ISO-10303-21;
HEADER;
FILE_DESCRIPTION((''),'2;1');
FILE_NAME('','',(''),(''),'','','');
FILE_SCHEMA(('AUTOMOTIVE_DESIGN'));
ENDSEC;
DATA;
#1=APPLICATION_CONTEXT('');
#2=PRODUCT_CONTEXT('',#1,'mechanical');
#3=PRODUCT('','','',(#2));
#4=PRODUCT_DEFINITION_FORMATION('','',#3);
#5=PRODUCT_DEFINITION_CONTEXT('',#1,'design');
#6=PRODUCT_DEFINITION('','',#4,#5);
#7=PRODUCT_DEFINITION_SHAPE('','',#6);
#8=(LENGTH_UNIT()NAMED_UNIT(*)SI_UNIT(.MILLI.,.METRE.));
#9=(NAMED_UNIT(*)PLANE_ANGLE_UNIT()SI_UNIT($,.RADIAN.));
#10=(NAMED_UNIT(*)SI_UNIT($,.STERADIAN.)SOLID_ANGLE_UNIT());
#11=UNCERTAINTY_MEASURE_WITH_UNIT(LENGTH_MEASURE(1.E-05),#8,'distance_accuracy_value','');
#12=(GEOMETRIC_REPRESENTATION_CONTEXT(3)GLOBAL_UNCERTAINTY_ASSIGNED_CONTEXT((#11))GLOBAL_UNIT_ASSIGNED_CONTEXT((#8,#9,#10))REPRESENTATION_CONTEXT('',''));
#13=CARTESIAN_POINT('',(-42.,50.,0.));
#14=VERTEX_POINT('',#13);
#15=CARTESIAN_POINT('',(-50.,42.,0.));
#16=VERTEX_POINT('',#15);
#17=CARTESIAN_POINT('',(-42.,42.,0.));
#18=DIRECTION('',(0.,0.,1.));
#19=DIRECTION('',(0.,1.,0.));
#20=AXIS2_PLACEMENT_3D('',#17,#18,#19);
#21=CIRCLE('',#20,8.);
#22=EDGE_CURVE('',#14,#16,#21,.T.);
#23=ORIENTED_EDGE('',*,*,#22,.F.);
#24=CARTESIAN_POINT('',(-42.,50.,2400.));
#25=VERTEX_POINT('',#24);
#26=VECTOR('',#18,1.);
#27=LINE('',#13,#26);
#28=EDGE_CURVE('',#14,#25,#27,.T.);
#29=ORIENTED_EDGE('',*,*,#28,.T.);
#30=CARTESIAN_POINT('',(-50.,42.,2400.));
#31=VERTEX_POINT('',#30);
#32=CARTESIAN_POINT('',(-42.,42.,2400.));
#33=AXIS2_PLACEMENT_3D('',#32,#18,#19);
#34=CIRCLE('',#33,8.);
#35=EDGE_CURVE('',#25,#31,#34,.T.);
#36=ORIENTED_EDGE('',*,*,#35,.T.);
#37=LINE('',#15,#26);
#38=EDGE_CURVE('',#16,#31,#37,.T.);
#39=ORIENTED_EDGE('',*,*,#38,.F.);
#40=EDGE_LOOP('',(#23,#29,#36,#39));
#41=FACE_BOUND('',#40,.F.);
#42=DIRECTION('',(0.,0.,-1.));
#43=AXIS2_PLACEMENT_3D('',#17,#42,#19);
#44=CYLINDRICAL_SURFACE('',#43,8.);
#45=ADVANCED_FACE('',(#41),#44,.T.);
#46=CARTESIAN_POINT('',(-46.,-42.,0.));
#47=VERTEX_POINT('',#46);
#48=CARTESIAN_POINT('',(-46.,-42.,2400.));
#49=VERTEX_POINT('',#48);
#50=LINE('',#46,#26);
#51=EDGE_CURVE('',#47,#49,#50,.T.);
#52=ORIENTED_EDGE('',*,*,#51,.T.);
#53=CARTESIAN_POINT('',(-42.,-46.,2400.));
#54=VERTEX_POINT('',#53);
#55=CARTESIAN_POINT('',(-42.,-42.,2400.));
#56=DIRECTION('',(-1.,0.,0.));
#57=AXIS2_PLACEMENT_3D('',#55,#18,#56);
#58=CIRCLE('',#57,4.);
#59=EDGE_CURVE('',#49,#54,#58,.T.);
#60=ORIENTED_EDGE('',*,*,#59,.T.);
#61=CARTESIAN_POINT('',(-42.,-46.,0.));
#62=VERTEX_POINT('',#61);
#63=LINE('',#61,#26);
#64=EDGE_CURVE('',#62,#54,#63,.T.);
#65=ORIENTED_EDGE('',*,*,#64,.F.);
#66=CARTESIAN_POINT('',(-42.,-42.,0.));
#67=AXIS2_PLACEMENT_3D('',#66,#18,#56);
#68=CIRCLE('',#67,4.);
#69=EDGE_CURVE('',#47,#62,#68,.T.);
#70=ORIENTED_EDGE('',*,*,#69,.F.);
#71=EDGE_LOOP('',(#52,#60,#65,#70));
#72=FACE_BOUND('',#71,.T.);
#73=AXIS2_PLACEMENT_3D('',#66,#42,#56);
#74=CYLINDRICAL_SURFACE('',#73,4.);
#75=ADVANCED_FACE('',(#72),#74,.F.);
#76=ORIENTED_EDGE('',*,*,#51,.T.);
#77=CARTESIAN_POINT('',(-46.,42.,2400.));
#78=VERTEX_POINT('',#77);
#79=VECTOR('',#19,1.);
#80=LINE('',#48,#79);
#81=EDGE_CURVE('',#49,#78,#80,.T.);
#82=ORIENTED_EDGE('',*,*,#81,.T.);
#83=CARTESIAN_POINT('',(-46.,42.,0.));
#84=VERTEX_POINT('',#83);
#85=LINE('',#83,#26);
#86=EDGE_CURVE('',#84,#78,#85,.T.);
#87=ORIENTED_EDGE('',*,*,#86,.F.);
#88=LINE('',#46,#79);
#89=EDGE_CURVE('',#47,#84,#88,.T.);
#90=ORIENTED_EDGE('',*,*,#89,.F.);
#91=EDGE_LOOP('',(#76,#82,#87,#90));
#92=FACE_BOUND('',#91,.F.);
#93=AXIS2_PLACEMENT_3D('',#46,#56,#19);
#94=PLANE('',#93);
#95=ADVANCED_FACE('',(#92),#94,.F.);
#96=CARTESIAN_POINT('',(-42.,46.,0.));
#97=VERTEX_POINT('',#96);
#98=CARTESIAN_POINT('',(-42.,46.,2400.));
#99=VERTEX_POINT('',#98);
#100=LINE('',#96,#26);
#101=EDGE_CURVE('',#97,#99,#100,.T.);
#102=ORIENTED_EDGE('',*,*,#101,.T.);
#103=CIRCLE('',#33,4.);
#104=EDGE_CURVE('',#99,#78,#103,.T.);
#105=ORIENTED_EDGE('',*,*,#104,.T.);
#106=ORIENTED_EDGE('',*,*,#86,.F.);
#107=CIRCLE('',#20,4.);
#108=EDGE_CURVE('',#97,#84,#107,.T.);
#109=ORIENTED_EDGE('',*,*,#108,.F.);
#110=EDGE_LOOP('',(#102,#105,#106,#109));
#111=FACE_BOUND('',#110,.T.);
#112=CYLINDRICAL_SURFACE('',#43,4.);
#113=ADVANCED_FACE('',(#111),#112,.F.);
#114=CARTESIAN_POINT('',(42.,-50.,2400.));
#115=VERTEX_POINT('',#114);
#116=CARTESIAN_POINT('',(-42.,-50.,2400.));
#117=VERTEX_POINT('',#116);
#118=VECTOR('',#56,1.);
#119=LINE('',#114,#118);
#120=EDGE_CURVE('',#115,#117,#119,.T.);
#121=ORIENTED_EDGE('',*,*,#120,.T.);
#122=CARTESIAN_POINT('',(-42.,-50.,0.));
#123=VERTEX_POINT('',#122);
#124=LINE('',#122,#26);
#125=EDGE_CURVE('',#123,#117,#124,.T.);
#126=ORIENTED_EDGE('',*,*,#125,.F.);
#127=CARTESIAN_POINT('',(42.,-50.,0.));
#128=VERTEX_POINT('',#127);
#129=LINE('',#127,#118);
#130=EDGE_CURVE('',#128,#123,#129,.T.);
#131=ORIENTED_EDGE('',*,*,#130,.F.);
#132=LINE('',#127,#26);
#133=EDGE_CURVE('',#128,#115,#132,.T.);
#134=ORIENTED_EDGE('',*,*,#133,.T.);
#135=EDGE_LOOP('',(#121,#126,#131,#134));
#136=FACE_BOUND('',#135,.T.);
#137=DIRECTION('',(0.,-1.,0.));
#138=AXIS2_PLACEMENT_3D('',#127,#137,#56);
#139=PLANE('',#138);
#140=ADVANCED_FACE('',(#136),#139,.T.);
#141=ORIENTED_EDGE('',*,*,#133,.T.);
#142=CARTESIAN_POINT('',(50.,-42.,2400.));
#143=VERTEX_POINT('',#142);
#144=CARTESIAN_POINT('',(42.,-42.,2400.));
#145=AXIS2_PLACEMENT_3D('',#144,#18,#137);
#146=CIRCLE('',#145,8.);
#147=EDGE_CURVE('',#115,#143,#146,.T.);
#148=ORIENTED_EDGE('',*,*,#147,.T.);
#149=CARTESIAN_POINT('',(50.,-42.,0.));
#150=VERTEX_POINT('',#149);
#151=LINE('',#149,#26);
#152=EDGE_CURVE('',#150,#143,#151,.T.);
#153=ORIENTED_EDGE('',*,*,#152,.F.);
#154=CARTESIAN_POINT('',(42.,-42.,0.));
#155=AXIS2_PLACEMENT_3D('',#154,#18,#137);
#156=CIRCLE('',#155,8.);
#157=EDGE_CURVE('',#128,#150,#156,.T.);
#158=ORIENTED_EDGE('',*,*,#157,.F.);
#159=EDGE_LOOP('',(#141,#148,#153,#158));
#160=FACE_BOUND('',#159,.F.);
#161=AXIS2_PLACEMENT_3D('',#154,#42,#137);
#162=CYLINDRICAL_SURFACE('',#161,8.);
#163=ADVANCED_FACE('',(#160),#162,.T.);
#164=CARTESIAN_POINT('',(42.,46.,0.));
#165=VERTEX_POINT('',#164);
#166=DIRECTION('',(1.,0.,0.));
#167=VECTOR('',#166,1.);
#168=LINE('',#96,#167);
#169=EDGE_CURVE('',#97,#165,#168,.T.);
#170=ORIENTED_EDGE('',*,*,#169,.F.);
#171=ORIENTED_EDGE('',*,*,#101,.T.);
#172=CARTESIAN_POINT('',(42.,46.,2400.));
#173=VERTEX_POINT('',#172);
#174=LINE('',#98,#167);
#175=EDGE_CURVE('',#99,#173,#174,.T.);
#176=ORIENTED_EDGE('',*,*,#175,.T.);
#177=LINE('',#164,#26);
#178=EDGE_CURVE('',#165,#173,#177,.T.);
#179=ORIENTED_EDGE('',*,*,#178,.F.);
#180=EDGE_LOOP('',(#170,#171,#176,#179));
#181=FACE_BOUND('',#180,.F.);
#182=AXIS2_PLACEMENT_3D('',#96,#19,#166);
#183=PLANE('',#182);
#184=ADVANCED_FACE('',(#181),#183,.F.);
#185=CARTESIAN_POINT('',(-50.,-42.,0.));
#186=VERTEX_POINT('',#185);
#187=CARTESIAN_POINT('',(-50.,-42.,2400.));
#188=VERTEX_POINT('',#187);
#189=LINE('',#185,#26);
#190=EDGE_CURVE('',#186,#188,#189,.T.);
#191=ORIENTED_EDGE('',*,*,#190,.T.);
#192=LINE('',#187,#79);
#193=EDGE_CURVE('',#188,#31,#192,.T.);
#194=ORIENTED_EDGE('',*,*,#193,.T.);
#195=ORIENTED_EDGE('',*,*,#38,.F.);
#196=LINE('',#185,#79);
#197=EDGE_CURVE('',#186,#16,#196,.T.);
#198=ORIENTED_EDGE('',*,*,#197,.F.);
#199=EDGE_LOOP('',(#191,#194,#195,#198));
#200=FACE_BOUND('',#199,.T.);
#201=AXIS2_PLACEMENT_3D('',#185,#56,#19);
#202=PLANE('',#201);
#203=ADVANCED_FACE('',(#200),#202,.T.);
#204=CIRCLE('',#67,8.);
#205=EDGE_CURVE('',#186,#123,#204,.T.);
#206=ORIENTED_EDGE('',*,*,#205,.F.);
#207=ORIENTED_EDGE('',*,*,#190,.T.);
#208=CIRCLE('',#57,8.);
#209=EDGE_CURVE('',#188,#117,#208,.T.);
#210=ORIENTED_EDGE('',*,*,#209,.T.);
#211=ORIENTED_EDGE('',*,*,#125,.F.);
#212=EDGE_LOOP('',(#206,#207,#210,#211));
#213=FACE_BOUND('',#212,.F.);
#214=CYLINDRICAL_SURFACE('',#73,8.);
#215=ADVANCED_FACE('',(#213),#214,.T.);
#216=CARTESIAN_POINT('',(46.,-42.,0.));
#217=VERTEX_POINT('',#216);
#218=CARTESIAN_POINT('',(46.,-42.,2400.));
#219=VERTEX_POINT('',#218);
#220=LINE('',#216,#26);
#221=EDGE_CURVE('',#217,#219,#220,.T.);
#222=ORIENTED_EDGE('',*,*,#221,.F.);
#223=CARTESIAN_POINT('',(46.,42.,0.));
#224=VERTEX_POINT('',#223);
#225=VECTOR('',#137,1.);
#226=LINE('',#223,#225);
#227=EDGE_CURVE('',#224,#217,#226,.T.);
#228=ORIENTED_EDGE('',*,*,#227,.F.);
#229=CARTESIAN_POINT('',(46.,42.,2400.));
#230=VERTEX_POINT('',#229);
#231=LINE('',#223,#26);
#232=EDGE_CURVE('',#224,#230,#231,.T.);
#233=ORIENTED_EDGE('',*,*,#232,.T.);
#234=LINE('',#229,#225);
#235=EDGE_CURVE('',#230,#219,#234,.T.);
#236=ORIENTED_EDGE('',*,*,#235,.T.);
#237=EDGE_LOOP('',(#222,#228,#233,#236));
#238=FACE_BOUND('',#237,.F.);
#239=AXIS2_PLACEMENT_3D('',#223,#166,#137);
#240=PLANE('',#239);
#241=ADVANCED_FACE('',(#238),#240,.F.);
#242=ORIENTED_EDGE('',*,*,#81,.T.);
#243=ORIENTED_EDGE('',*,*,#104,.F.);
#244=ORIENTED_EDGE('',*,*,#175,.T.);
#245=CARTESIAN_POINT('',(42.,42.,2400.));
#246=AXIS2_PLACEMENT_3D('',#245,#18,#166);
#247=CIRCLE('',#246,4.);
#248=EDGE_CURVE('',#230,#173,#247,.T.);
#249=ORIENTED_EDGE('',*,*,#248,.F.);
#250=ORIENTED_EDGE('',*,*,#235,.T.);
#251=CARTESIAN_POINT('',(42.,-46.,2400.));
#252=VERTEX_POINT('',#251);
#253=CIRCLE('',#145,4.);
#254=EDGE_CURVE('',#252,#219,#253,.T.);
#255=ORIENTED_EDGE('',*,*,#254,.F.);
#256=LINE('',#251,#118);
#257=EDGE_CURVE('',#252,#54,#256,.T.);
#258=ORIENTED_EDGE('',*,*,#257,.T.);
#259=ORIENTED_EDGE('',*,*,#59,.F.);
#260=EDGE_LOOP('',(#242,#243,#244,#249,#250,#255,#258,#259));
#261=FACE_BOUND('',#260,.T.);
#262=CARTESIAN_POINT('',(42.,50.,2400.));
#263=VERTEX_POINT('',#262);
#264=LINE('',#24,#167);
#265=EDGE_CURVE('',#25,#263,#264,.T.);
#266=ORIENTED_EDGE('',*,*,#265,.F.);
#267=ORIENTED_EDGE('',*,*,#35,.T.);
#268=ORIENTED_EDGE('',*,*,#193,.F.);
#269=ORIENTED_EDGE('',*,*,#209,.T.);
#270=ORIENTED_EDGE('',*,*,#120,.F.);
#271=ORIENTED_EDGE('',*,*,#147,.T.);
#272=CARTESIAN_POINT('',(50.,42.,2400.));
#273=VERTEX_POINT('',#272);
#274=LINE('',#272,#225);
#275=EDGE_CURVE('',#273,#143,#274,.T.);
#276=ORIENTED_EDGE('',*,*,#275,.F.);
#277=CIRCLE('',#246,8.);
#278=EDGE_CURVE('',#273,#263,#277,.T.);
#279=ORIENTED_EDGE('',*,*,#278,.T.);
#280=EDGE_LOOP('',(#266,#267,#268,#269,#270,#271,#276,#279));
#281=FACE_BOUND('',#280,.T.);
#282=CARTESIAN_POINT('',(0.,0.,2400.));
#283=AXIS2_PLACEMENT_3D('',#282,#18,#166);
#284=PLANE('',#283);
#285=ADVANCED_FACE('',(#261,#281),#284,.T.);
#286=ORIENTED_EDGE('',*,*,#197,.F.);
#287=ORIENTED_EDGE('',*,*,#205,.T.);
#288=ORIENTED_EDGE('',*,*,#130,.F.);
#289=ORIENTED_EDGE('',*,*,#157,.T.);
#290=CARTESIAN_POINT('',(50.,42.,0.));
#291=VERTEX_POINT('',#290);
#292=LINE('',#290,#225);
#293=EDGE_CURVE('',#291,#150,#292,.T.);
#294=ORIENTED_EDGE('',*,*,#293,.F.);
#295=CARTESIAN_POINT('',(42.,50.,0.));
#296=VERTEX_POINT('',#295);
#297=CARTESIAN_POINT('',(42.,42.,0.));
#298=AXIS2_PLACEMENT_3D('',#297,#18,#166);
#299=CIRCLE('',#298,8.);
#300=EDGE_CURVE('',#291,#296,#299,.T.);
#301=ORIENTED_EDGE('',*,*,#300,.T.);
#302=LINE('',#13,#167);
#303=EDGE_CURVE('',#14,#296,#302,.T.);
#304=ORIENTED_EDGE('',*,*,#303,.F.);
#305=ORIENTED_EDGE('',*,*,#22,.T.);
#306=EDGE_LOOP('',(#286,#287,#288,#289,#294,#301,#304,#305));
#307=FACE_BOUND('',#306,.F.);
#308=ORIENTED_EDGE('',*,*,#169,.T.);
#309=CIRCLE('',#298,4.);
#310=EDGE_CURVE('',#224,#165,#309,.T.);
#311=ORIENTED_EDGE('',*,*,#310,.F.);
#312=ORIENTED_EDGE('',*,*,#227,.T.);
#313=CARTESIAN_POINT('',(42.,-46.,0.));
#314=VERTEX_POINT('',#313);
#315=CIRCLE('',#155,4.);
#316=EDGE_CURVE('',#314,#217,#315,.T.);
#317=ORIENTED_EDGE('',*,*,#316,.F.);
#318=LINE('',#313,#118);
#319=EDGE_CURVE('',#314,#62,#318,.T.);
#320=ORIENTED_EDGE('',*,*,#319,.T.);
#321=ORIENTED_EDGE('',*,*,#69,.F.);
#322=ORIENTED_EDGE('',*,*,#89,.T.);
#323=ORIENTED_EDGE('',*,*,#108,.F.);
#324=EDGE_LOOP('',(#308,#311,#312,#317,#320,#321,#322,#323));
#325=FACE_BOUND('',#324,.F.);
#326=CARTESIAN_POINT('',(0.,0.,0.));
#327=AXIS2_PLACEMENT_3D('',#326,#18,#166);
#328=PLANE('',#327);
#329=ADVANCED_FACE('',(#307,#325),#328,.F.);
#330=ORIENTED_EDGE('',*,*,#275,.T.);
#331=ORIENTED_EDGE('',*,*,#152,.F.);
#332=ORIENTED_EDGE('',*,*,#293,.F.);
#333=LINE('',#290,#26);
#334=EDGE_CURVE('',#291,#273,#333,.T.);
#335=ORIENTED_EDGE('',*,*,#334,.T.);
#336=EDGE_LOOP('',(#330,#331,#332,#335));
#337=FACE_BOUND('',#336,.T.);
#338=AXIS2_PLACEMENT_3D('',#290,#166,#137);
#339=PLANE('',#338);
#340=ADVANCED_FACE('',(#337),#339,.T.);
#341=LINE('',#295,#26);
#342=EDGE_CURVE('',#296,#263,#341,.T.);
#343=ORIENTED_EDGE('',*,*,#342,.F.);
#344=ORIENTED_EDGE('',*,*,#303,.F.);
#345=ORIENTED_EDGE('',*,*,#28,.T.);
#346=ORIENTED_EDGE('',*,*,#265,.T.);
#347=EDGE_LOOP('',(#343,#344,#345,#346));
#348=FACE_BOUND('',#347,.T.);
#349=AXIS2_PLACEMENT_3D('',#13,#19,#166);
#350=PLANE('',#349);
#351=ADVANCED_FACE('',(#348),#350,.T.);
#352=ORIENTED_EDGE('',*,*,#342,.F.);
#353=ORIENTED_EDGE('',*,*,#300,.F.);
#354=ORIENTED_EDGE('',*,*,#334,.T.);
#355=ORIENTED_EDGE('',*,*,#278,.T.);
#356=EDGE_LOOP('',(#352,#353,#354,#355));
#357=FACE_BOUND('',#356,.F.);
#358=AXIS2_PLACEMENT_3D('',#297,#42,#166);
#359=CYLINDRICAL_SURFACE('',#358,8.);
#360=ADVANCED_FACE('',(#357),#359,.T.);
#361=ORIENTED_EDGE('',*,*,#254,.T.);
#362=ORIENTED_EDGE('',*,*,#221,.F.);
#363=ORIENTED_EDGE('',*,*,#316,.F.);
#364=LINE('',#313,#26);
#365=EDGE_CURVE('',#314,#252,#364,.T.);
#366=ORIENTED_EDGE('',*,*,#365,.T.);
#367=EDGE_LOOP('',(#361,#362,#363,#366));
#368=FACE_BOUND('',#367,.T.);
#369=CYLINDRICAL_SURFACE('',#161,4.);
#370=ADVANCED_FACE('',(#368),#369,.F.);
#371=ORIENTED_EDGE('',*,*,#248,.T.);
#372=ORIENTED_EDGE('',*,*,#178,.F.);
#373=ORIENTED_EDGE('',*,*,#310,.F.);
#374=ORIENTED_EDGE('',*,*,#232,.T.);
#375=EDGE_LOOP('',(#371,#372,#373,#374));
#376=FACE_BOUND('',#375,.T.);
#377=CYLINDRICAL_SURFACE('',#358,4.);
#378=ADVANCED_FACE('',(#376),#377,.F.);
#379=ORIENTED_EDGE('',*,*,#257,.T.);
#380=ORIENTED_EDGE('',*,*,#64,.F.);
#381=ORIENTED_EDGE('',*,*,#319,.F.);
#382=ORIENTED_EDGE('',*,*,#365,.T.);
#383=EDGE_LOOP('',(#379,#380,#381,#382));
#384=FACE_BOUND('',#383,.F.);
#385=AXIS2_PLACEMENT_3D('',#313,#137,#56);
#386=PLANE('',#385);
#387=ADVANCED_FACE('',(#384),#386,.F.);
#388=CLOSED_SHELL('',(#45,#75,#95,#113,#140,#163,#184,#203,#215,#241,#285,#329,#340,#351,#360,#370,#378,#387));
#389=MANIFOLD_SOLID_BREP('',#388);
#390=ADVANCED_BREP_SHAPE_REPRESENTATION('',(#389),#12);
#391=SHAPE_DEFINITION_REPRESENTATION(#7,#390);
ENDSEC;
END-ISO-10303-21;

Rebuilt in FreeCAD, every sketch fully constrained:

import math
import FreeCAD as App
import Part
import Sketcher
from FreeCAD import Vector

doc = App.newDocument("Part")
body = doc.addObject("PartDesign::Body", "Body")

sketch1 = body.newObject("Sketcher::SketchObject", "Sketch")
sketch1.AttachmentSupport = (doc.getObject("XY_Plane"), [""])
sketch1.MapMode = "FlatFace"
sketch1.addGeometry(Part.LineSegment(Vector(-50, 42, 0), Vector(-50, -42, 0)), False)
sketch1.addGeometry(Part.ArcOfCircle(Part.Circle(Vector(-42, -42, 0), Vector(0, 0, 1), 8), math.radians(180), math.radians(270)), False)
sketch1.addGeometry(Part.LineSegment(Vector(-42, -50, 0), Vector(42, -50, 0)), False)
sketch1.addGeometry(Part.ArcOfCircle(Part.Circle(Vector(42, -42, 0), Vector(0, 0, 1), 8), math.radians(-90), math.radians(0)), False)
sketch1.addGeometry(Part.LineSegment(Vector(50, -42, 0), Vector(50, 42, 0)), False)
sketch1.addGeometry(Part.ArcOfCircle(Part.Circle(Vector(42, 42, 0), Vector(0, 0, 1), 8), math.radians(0), math.radians(90)), False)
sketch1.addGeometry(Part.LineSegment(Vector(42, 50, 0), Vector(-42, 50, 0)), False)
sketch1.addGeometry(Part.ArcOfCircle(Part.Circle(Vector(-42, 42, 0), Vector(0, 0, 1), 8), math.radians(90), math.radians(180)), False)
sketch1.addGeometry(Part.ArcOfCircle(Part.Circle(Vector(-42, 42, 0), Vector(0, 0, 1), 4), math.radians(90), math.radians(180)), False)
sketch1.addGeometry(Part.LineSegment(Vector(-42, 46, 0), Vector(42, 46, 0)), False)
sketch1.addGeometry(Part.ArcOfCircle(Part.Circle(Vector(42, 42, 0), Vector(0, 0, 1), 4), math.radians(0), math.radians(90)), False)
sketch1.addGeometry(Part.LineSegment(Vector(46, 42, 0), Vector(46, -42, 0)), False)
sketch1.addGeometry(Part.ArcOfCircle(Part.Circle(Vector(42, -42, 0), Vector(0, 0, 1), 4), math.radians(-90), math.radians(0)), False)
sketch1.addGeometry(Part.LineSegment(Vector(42, -46, 0), Vector(-42, -46, 0)), False)
sketch1.addGeometry(Part.ArcOfCircle(Part.Circle(Vector(-42, -42, 0), Vector(0, 0, 1), 4), math.radians(180), math.radians(270)), False)
sketch1.addGeometry(Part.LineSegment(Vector(-46, -42, 0), Vector(-46, 42, 0)), False)
sketch1.addConstraint(Sketcher.Constraint("Tangent", 0, 2, 1, 1))
sketch1.addConstraint(Sketcher.Constraint("Tangent", 1, 2, 2, 1))
sketch1.addConstraint(Sketcher.Constraint("Tangent", 2, 2, 3, 1))
sketch1.addConstraint(Sketcher.Constraint("Tangent", 3, 2, 4, 1))
sketch1.addConstraint(Sketcher.Constraint("Tangent", 4, 2, 5, 1))
sketch1.addConstraint(Sketcher.Constraint("Tangent", 5, 2, 6, 1))
sketch1.addConstraint(Sketcher.Constraint("Tangent", 6, 2, 7, 1))
sketch1.addConstraint(Sketcher.Constraint("Tangent", 7, 2, 0, 1))
sketch1.addConstraint(Sketcher.Constraint("Tangent", 8, 1, 9, 1))
sketch1.addConstraint(Sketcher.Constraint("Tangent", 9, 2, 10, 2))
sketch1.addConstraint(Sketcher.Constraint("Tangent", 10, 1, 11, 1))
sketch1.addConstraint(Sketcher.Constraint("Tangent", 11, 2, 12, 2))
sketch1.addConstraint(Sketcher.Constraint("Tangent", 12, 1, 13, 1))
sketch1.addConstraint(Sketcher.Constraint("Tangent", 13, 2, 14, 2))
sketch1.addConstraint(Sketcher.Constraint("Tangent", 14, 1, 15, 1))
sketch1.addConstraint(Sketcher.Constraint("Tangent", 15, 2, 8, 2))
sketch1.addConstraint(Sketcher.Constraint("Vertical", 0))
sketch1.addConstraint(Sketcher.Constraint("Horizontal", 2))
sketch1.addConstraint(Sketcher.Constraint("Vertical", 4))
sketch1.addConstraint(Sketcher.Constraint("Horizontal", 6))
sketch1.addConstraint(Sketcher.Constraint("Horizontal", 9))
sketch1.addConstraint(Sketcher.Constraint("Vertical", 11))
sketch1.addConstraint(Sketcher.Constraint("Horizontal", 13))
sketch1.addConstraint(Sketcher.Constraint("Vertical", 15))
sketch1.addConstraint(Sketcher.Constraint("Coincident", 8, 3, 7, 3))
sketch1.addConstraint(Sketcher.Constraint("Coincident", 10, 3, 5, 3))
sketch1.addConstraint(Sketcher.Constraint("Coincident", 12, 3, 3, 3))
sketch1.addConstraint(Sketcher.Constraint("Equal", 1, 3))
sketch1.addConstraint(Sketcher.Constraint("Equal", 3, 5))
sketch1.addConstraint(Sketcher.Constraint("Equal", 5, 7))
sketch1.addConstraint(Sketcher.Constraint("Equal", 12, 14))
sketch1.addConstraint(Sketcher.Constraint("Symmetric", 1, 3, 5, 3, -1, 1))
sketch1.addConstraint(Sketcher.Constraint("Equal", 13, 0))
sketch1.addConstraint(Sketcher.Constraint("Radius", 1, 8.0))
sketch1.addConstraint(Sketcher.Constraint("Radius", 8, 4.0))
sketch1.addConstraint(Sketcher.Constraint("DistanceX", 0, 2, -1, 1, 50.0))
pad1 = body.newObject("PartDesign::Pad", "Pad")
pad1.Profile = sketch1
pad1.Length = 2400

doc.recompute()
